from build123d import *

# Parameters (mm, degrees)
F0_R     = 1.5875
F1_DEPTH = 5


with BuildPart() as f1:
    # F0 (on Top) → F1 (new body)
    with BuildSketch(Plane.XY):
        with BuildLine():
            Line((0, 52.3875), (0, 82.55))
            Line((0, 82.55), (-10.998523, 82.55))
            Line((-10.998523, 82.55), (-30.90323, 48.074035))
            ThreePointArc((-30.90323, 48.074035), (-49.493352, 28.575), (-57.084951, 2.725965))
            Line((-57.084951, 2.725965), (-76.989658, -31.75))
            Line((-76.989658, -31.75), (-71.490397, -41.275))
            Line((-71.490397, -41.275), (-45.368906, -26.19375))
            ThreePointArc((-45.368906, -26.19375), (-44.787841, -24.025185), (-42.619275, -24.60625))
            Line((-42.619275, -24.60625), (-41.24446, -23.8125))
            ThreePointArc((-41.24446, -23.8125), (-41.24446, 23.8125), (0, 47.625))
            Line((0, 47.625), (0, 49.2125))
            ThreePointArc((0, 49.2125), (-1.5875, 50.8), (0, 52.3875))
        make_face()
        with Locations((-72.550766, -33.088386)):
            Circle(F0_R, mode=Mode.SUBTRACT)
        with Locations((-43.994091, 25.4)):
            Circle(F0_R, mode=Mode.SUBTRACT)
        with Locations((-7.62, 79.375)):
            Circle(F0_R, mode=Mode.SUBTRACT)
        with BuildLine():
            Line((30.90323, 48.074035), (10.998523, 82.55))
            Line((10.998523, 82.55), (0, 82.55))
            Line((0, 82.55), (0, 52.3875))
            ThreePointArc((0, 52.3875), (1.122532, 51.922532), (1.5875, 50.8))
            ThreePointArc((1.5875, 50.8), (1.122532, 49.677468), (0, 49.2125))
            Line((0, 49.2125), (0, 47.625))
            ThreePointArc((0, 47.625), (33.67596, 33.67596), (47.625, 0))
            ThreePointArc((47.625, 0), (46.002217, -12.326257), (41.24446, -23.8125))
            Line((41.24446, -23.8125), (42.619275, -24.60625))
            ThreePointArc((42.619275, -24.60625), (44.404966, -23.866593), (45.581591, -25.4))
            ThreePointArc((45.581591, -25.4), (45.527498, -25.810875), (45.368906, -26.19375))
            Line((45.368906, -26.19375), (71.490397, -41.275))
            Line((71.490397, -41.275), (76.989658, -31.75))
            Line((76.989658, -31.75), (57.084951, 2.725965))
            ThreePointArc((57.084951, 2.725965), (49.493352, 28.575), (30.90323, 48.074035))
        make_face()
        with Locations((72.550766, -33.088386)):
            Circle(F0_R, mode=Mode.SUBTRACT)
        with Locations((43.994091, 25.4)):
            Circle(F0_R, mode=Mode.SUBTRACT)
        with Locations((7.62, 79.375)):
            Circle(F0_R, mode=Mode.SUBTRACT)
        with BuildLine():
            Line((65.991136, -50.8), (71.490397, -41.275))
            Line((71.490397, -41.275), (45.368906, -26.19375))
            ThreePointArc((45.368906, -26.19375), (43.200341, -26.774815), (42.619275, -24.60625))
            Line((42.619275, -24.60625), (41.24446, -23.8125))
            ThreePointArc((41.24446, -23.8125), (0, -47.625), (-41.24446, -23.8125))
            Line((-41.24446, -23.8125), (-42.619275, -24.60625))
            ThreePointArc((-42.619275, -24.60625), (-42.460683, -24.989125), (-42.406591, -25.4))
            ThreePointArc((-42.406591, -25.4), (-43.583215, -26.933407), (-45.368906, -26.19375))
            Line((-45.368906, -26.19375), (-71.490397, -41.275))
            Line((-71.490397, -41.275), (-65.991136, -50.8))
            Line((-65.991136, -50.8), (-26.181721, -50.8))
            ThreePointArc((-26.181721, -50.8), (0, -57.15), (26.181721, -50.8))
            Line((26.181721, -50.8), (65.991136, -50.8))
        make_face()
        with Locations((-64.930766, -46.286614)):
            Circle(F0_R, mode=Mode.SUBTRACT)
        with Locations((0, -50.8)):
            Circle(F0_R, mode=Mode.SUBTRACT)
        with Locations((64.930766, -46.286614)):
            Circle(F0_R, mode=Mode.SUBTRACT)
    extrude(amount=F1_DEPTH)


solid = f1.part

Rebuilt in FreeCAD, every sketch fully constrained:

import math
import FreeCAD as App
import Part
import Sketcher
Q = App.Units.Quantity

doc = App.newDocument("Part")
body = doc.addObject("PartDesign::Body", "Body")

sketch1 = doc.addObject("Sketcher::SketchObject", "Sketch")
body.addObject(sketch1)
sketch1.AttachmentSupport = (doc.XY_Plane, [""])
sketch1.MapMode = "FlatFace"
sketch1.addGeometry([
    Part.LineSegment(App.Vector(-11, 82.5, 0), App.Vector(-30.9, 48.1, 0)),
    Part.ArcOfCircle(Part.Circle(App.Vector(0, 0, 0), App.Vector(0, 0, 1), 57.1), math.radians(123), math.radians(177)),
    Part.LineSegment(App.Vector(-57.1, 2.7, 0), App.Vector(-77, -31.8, 0)),
    Part.LineSegment(App.Vector(-77, -31.8, 0), App.Vector(-66, -50.8, 0)),
    Part.LineSegment(App.Vector(-66, -50.8, 0), App.Vector(-26.2, -50.8, 0)),
    Part.ArcOfCircle(Part.Circle(App.Vector(0, 0, 0), App.Vector(0, 0, 1), 57.2), math.radians(-117), math.radians(-63)),
    Part.LineSegment(App.Vector(26.2, -50.8, 0), App.Vector(66, -50.8, 0)),
    Part.LineSegment(App.Vector(66, -50.8, 0), App.Vector(77, -31.8, 0)),
    Part.LineSegment(App.Vector(77, -31.8, 0), App.Vector(57.1, 2.7, 0)),
    Part.ArcOfCircle(Part.Circle(App.Vector(0, 0, 0), App.Vector(0, 0, 1), 57.1), math.radians(3), math.radians(57)),
    Part.LineSegment(App.Vector(30.9, 48.1, 0), App.Vector(11, 82.5, 0)),
    Part.LineSegment(App.Vector(11, 82.5, 0), App.Vector(-11, 82.5, 0)),
    Part.Circle(App.Vector(-64.9, -46.3, 0), App.Vector(0, 0, 1), 1.6),
    Part.Circle(App.Vector(-72.6, -33.1, 0), App.Vector(0, 0, 1), 1.6),
    Part.ArcOfCircle(Part.Circle(App.Vector(-44, -25.4, 0), App.Vector(0, 0, 1), 1.6), math.radians(30), math.radians(210)),
    Part.ArcOfCircle(Part.Circle(App.Vector(-44, -25.4, 0), App.Vector(0, 0, 1), 1.6), math.radians(0), math.radians(30)),
    Part.ArcOfCircle(Part.Circle(App.Vector(-44, -25.4, 0), App.Vector(0, 0, 1), 1.6), math.radians(-150), math.radians(0)),
    Part.ArcOfCircle(Part.Circle(App.Vector(0, 0, 0), App.Vector(0, 0, 1), 47.6), math.radians(90), math.radians(210)),
    Part.ArcOfCircle(Part.Circle(App.Vector(0, 0, 0), App.Vector(0, 0, 1), 47.6), math.radians(0), math.radians(90)),
    Part.ArcOfCircle(Part.Circle(App.Vector(0, 0, 0), App.Vector(0, 0, 1), 47.6), math.radians(-30), math.radians(0)),
    Part.ArcOfCircle(Part.Circle(App.Vector(0, 0, 0), App.Vector(0, 0, 1), 47.6), math.radians(-150), math.radians(-30)),
    Part.Circle(App.Vector(0, -50.8, 0), App.Vector(0, 0, 1), 1.6),
    Part.Circle(App.Vector(64.9, -46.3, 0), App.Vector(0, 0, 1), 1.6),
    Part.ArcOfCircle(Part.Circle(App.Vector(44, -25.4, 0), App.Vector(0, 0, 1), 1.6), math.radians(-30), math.radians(0)),
    Part.ArcOfCircle(Part.Circle(App.Vector(44, -25.4, 0), App.Vector(0, 0, 1), 1.6), math.radians(150), math.radians(330)),
    Part.ArcOfCircle(Part.Circle(App.Vector(44, -25.4, 0), App.Vector(0, 0, 1), 1.6), math.radians(0), math.radians(150)),
    Part.Circle(App.Vector(72.6, -33.1, 0), App.Vector(0, 0, 1), 1.6),
    Part.Circle(App.Vector(-44, 25.4, 0), App.Vector(0, 0, 1), 1.6),
    Part.Circle(App.Vector(-7.6, 79.4, 0), App.Vector(0, 0, 1), 1.6),
    Part.Circle(App.Vector(44, 25.4, 0), App.Vector(0, 0, 1), 1.6),
    Part.ArcOfCircle(Part.Circle(App.Vector(0, 50.8, 0), App.Vector(0, 0, 1), 1.6), math.radians(90), math.radians(270)),
    Part.ArcOfCircle(Part.Circle(App.Vector(0, 50.8, 0), App.Vector(0, 0, 1), 1.6), math.radians(0), math.radians(90)),
    Part.ArcOfCircle(Part.Circle(App.Vector(0, 50.8, 0), App.Vector(0, 0, 1), 1.6), math.radians(-90), math.radians(0)),
    Part.Circle(App.Vector(7.6, 79.4, 0), App.Vector(0, 0, 1), 1.6),
], False)
sketch1.addConstraint([
    Sketcher.Constraint("Coincident", 0, 2, 1, 1),
    Sketcher.Constraint("Coincident", 1, 2, 2, 1),
    Sketcher.Constraint("Coincident", 2, 2, 3, 1),
    Sketcher.Constraint("Coincident", 3, 2, 4, 1),
    Sketcher.Constraint("Coincident", 4, 2, 5, 1),
    Sketcher.Constraint("Coincident", 5, 2, 6, 1),
    Sketcher.Constraint("Coincident", 6, 2, 7, 1),
    Sketcher.Constraint("Coincident", 7, 2, 8, 1),
    Sketcher.Constraint("Coincident", 8, 2, 9, 1),
    Sketcher.Constraint("Coincident", 9, 2, 10, 1),
    Sketcher.Constraint("Coincident", 10, 2, 11, 1),
    Sketcher.Constraint("Coincident", 11, 2, 0, 1),
    Sketcher.Constraint("Tangent", 14, 1, 15, 2),
    Sketcher.Constraint("Coincident", 15, 1, 16, 2),
    Sketcher.Constraint("Tangent", 16, 1, 14, 2),
    Sketcher.Constraint("Tangent", 17, 1, 18, 2),
    Sketcher.Constraint("Tangent", 18, 1, 19, 2),
    Sketcher.Constraint("Tangent", 19, 1, 20, 2),
    Sketcher.Constraint("Tangent", 20, 1, 17, 2),
    Sketcher.Constraint("Tangent", 23, 1, 24, 2),
    Sketcher.Constraint("Tangent", 24, 1, 25, 2),
    Sketcher.Constraint("Tangent", 25, 1, 23, 2),
    Sketcher.Constraint("Tangent", 30, 1, 31, 2),
    Sketcher.Constraint("Tangent", 31, 1, 32, 2),
    Sketcher.Constraint("Tangent", 32, 1, 30, 2),
    Sketcher.Constraint("Horizontal", 4),
    Sketcher.Constraint("Horizontal", 6),
    Sketcher.Constraint("Horizontal", 11),
    Sketcher.Constraint("Coincident", 1, 3, -1, 1),
    Sketcher.Constraint("Coincident", 5, 3, -1, 1),
    Sketcher.Constraint("Coincident", 9, 3, -1, 1),
    Sketcher.Constraint("Coincident", 17, 3, -1, 1),
    Sketcher.Constraint("Equal", 1, 9),
    Sketcher.Constraint("Equal", 12, 13),
    Sketcher.Constraint("Equal", 13, 14),
    Sketcher.Constraint("Equal", 14, 16),
    Sketcher.Constraint("Equal", 17, 18),
    Sketcher.Constraint("Equal", 16, 21),
    Sketcher.Constraint("Equal", 21, 22),
    Sketcher.Constraint("Equal", 22, 24),
    Sketcher.Constraint("Equal", 25, 26),
    Sketcher.Constraint("Equal", 26, 27),
    Sketcher.Constraint("Equal", 27, 28),
    Sketcher.Constraint("Equal", 28, 29),
    Sketcher.Constraint("Equal", 29, 30),
    Sketcher.Constraint("Equal", 32, 33),
    Sketcher.Constraint("Symmetric", 23, 3, 27, 3, -1, 1),
    Sketcher.Constraint("Symmetric", 14, 3, 29, 3, -1, 1),
    Sketcher.Constraint("Symmetric", 21, 3, 30, 3, -1, 1),
    Sketcher.Constraint("Symmetric", 12, 3, 22, 3, -2),
    Sketcher.Constraint("Symmetric", 14, 3, 23, 3, -2),
    Sketcher.Constraint("Symmetric", 13, 3, 26, 3, -2),
    Sketcher.Constraint("Symmetric", 28, 3, 33, 3, -2),
    Sketcher.Constraint("Symmetric", 3, 2, 6, 2, -2),
    Sketcher.Constraint("Symmetric", 2, 2, 7, 2, -2),
    Sketcher.Constraint("PointOnObject", 21, 3, -2),
    Sketcher.Constraint("PointOnObject", 17, 1, -2),
    Sketcher.Constraint("PointOnObject", 18, 1, -1),
    Sketcher.Constraint("PointOnObject", 30, 1, -2),
    Sketcher.Constraint("PointOnObject", 32, 1, -2),
    Sketcher.Constraint("Parallel", 0, 2),
    Sketcher.Constraint("Parallel", 2, 7),
    Sketcher.Constraint("Parallel", 3, 8),
    Sketcher.Constraint("Parallel", 8, 10),
    Sketcher.Constraint("Horizontal", 21, 3, 3, 2),
    Sketcher.Constraint("Horizontal", 0, 2, 9, 2),
    Sketcher.Constraint("Horizontal", 25, 3, 15, 1),
    Sketcher.Constraint("Horizontal", 19, 1, 20, 1),
    Sketcher.Constraint("Horizontal", 16, 1, 23, 1),
    Sketcher.Constraint("Horizontal", 14, 1, 24, 1),
    Sketcher.Constraint("Horizontal", 15, 1, 25, 1),
    Sketcher.Constraint("Horizontal", 32, 3, 31, 1),
    Sketcher.Constraint("Equal", 0, 2),
    Sketcher.Constraint("Radius", 1, Q("2.2499999 in")),
    Sketcher.Constraint("Radius", 5, Q("2.25 in")),
    Sketcher.Constraint("Diameter", 12, Q("0.125 in")),
    Sketcher.Constraint("DistanceY", 14, 3, -1, 1, Q("1 in")),
    Sketcher.Constraint("DistanceY", 21, 3, -1, 1, Q("2 in")),
    Sketcher.Constraint("Angle", 0, Q("-119.999999 deg")),
    Sketcher.Constraint("Radius", 17, Q("1.875 in")),
    Sketcher.Constraint("DistanceX", 28, 3, -1, 1, Q("0.3 in")),
    Sketcher.Constraint("DistanceX", 13, 3, 12, 3, Q("0.3 in")),
    Sketcher.Constraint("DistanceY", 2, 2, -1, 1, Q("1.25 in")),
    Sketcher.Constraint("DistanceY", -1, 1, 10, 2, Q("3.25 in")),
    Sketcher.Constraint("DistanceX", 4, 1, 4, 2, Q("1.5672998 in")),
    Sketcher.Constraint("DistanceY", -1, 1, 28, 3, Q("3.125 in")),
    Sketcher.Constraint("DistanceY", 14, 1, -1, 1, Q("0.96875 in")),
    Sketcher.Constraint("DistanceY", 16, 1, -1, 1, Q("1.03125 in")),
    Sketcher.Constraint("DistanceY", 19, 1, -1, 1, Q("0.9375 in")),
    Sketcher.Constraint("DistanceX", 14, 3, -1, 1, Q("43.99409 mm")),
    Sketcher.Constraint("DistanceX", 12, 3, 9, 3, Q("64.930768 mm")),
    Sketcher.Constraint("DistanceY", 13, 3, 15, 3, Q("7.68839 mm")),
    Sketcher.Constraint("DistanceY", 12, 3, -1, 1, Q("46.286614 mm")),
])
pad1 = doc.addObject("PartDesign::Pad", "Pad")
body.addObject(pad1)
pad1.Profile = sketch1
pad1.Length = 5

doc.recompute()
